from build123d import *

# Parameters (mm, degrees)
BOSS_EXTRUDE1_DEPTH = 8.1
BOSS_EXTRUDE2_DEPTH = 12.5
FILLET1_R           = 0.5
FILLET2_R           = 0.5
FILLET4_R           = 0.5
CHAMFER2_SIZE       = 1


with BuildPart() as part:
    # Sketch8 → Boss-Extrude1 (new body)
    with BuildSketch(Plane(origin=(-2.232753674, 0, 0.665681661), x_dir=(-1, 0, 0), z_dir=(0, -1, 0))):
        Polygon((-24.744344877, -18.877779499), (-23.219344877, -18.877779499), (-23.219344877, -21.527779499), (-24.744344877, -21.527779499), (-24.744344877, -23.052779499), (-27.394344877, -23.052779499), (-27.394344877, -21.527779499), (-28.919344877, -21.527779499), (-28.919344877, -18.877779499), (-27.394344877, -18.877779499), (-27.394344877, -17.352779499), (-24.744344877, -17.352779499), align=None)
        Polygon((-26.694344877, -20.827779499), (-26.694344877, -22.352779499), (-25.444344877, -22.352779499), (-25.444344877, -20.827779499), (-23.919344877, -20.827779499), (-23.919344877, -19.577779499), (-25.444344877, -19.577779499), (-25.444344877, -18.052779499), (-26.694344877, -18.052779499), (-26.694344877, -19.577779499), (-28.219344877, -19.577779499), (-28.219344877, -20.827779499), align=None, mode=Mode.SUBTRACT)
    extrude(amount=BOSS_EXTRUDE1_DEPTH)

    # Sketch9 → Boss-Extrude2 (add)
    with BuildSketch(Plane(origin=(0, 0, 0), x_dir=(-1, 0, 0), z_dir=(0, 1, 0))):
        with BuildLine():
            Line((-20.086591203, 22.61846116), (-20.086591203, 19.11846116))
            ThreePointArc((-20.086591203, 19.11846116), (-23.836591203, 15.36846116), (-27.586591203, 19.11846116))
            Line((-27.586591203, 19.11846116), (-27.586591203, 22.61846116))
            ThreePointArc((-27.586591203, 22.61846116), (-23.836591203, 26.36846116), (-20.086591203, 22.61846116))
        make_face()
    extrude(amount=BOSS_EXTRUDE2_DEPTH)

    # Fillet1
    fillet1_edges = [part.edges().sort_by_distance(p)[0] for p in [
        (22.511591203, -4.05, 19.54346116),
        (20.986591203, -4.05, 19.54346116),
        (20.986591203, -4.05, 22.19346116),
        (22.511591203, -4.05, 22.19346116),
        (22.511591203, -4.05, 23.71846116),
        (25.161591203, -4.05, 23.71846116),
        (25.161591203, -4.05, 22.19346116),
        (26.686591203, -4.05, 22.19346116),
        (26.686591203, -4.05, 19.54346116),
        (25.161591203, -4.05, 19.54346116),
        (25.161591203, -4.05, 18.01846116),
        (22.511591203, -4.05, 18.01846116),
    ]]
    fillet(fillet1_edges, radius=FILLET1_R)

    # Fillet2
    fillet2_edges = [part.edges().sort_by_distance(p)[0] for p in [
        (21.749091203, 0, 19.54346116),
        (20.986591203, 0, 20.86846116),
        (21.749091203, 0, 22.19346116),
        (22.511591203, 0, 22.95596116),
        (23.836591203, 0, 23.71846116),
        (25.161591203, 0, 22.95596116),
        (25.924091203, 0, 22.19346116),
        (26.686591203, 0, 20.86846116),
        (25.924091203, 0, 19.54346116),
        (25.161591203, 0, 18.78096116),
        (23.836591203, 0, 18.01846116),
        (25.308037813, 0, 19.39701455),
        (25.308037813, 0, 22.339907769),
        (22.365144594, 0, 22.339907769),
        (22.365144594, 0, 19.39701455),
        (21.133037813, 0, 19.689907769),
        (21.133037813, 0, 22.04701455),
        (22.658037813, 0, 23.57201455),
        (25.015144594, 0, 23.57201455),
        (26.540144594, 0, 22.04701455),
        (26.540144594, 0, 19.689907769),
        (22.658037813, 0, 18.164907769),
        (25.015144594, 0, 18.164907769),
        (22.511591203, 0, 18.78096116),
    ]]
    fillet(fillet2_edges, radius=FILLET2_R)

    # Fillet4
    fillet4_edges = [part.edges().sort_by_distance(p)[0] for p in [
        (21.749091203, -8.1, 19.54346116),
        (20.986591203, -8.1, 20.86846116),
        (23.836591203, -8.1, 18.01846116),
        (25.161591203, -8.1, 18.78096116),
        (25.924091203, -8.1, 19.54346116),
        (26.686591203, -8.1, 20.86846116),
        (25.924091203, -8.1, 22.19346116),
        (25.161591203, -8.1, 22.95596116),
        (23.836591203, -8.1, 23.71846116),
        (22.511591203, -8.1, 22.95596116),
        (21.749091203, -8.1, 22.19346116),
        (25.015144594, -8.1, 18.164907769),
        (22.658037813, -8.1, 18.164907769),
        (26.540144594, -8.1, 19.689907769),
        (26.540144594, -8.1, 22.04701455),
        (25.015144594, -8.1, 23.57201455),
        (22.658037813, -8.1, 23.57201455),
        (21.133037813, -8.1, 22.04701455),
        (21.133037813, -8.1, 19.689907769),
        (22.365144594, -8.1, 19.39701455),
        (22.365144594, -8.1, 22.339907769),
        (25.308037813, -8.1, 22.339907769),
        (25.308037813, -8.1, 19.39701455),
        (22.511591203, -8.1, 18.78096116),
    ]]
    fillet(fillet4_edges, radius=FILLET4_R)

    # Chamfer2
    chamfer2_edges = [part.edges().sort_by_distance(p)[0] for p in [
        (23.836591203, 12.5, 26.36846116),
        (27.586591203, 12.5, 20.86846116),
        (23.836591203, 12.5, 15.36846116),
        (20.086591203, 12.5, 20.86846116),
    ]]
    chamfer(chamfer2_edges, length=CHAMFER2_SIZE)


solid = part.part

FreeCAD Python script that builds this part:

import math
import FreeCAD as App
import Part
import Sketcher

V = App.Vector


def edges_at(feature, points):
    """Names of the edges that pass closest to the given points."""
    edges = feature.Shape.Edges
    near = lambda p: min(range(len(edges)), key=lambda i: edges[i].distToShape(Part.Vertex(*p))[0])
    return sorted({f"Edge{near(p) + 1}" for p in points})

doc = App.newDocument("Part")
body = doc.addObject("PartDesign::Body", "Body")

# Sketch on XZ plane
sketch1 = body.newObject("Sketcher::SketchObject", "Sketch")
sketch1.AttachmentSupport = (doc.getObject("XZ_Plane"), [""])
sketch1.MapMode = "FlatFace"
sketch1.addGeometry([
    Part.LineSegment(V(21, 19.5, 0), V(22.5, 19.5, 0)),  # 0
    Part.LineSegment(V(22.5, 19.5, 0), V(22.5, 18, 0)),  # 1
    Part.LineSegment(V(22.5, 18, 0), V(25.2, 18, 0)),  # 2
    Part.LineSegment(V(25.2, 18, 0), V(25.2, 19.5, 0)),  # 3
    Part.LineSegment(V(25.2, 19.5, 0), V(26.7, 19.5, 0)),  # 4
    Part.LineSegment(V(26.7, 19.5, 0), V(26.7, 22.2, 0)),  # 5
    Part.LineSegment(V(26.7, 22.2, 0), V(25.2, 22.2, 0)),  # 6
    Part.LineSegment(V(25.2, 22.2, 0), V(25.2, 23.7, 0)),  # 7
    Part.LineSegment(V(25.2, 23.7, 0), V(22.5, 23.7, 0)),  # 8
    Part.LineSegment(V(22.5, 23.7, 0), V(22.5, 22.2, 0)),  # 9
    Part.LineSegment(V(22.5, 22.2, 0), V(21, 22.2, 0)),  # 10
    Part.LineSegment(V(21, 22.2, 0), V(21, 19.5, 0)),  # 11
    Part.LineSegment(V(24.5, 21.5, 0), V(26, 21.5, 0)),  # 12
    Part.LineSegment(V(26, 21.5, 0), V(26, 20.2, 0)),  # 13
    Part.LineSegment(V(26, 20.2, 0), V(24.5, 20.2, 0)),  # 14
    Part.LineSegment(V(24.5, 20.2, 0), V(24.5, 18.7, 0)),  # 15
    Part.LineSegment(V(24.5, 18.7, 0), V(23.2, 18.7, 0)),  # 16
    Part.LineSegment(V(23.2, 18.7, 0), V(23.2, 20.2, 0)),  # 17
    Part.LineSegment(V(23.2, 20.2, 0), V(21.7, 20.2, 0)),  # 18
    Part.LineSegment(V(21.7, 20.2, 0), V(21.7, 21.5, 0)),  # 19
    Part.LineSegment(V(21.7, 21.5, 0), V(23.2, 21.5, 0)),  # 20
    Part.LineSegment(V(23.2, 21.5, 0), V(23.2, 23, 0)),  # 21
    Part.LineSegment(V(23.2, 23, 0), V(24.5, 23, 0)),  # 22
    Part.LineSegment(V(24.5, 23, 0), V(24.5, 21.5, 0)),  # 23
], False)
sketch1.addConstraint([
    Sketcher.Constraint("Coincident", 0, 2, 1, 1),
    Sketcher.Constraint("Coincident", 1, 2, 2, 1),
    Sketcher.Constraint("Coincident", 2, 2, 3, 1),
    Sketcher.Constraint("Coincident", 3, 2, 4, 1),
    Sketcher.Constraint("Coincident", 4, 2, 5, 1),
    Sketcher.Constraint("Coincident", 5, 2, 6, 1),
    Sketcher.Constraint("Coincident", 6, 2, 7, 1),
    Sketcher.Constraint("Coincident", 7, 2, 8, 1),
    Sketcher.Constraint("Coincident", 8, 2, 9, 1),
    Sketcher.Constraint("Coincident", 9, 2, 10, 1),
    Sketcher.Constraint("Coincident", 10, 2, 11, 1),
    Sketcher.Constraint("Coincident", 11, 2, 0, 1),
    Sketcher.Constraint("Coincident", 12, 2, 13, 1),
    Sketcher.Constraint("Coincident", 13, 2, 14, 1),
    Sketcher.Constraint("Coincident", 14, 2, 15, 1),
    Sketcher.Constraint("Coincident", 15, 2, 16, 1),
    Sketcher.Constraint("Coincident", 16, 2, 17, 1),
    Sketcher.Constraint("Coincident", 17, 2, 18, 1),
    Sketcher.Constraint("Coincident", 18, 2, 19, 1),
    Sketcher.Constraint("Coincident", 19, 2, 20, 1),
    Sketcher.Constraint("Coincident", 20, 2, 21, 1),
    Sketcher.Constraint("Coincident", 21, 2, 22, 1),
    Sketcher.Constraint("Coincident", 22, 2, 23, 1),
    Sketcher.Constraint("Coincident", 23, 2, 12, 1),
    Sketcher.Constraint("Horizontal", 0),
    Sketcher.Constraint("Vertical", 1),
    Sketcher.Constraint("Horizontal", 2),
    Sketcher.Constraint("Vertical", 3),
    Sketcher.Constraint("Horizontal", 4),
    Sketcher.Constraint("Vertical", 5),
    Sketcher.Constraint("Horizontal", 6),
    Sketcher.Constraint("Vertical", 7),
    Sketcher.Constraint("Horizontal", 8),
    Sketcher.Constraint("Vertical", 9),
    Sketcher.Constraint("Horizontal", 10),
    Sketcher.Constraint("Vertical", 11),
    Sketcher.Constraint("Horizontal", 12),
    Sketcher.Constraint("Vertical", 13),
    Sketcher.Constraint("Horizontal", 14),
    Sketcher.Constraint("Vertical", 15),
    Sketcher.Constraint("Horizontal", 16),
    Sketcher.Constraint("Vertical", 17),
    Sketcher.Constraint("Horizontal", 18),
    Sketcher.Constraint("Vertical", 19),
    Sketcher.Constraint("Horizontal", 20),
    Sketcher.Constraint("Vertical", 21),
    Sketcher.Constraint("Horizontal", 22),
    Sketcher.Constraint("Vertical", 23),
    Sketcher.Constraint("Horizontal", 0, 2, 3, 2),
    Sketcher.Constraint("Horizontal", 6, 2, 9, 2),
    Sketcher.Constraint("Horizontal", 14, 2, 17, 2),
    Sketcher.Constraint("Horizontal", 12, 2, 19, 2),
    Sketcher.Constraint("Vertical", 3, 2, 6, 2),
    Sketcher.Constraint("Vertical", 1, 2, 8, 2),
    Sketcher.Constraint("Vertical", 17, 2, 20, 2),
    Sketcher.Constraint("Vertical", 15, 2, 22, 2),
    Sketcher.Constraint("Equal", 0, 4),
    Sketcher.Constraint("Equal", 10, 12),
    Sketcher.Constraint("Equal", 14, 18),
    Sketcher.Constraint("Equal", 20, 1),
    Sketcher.Constraint("Equal", 8, 5),
    Sketcher.Constraint("Equal", 3, 7),
    Sketcher.Constraint("Equal", 22, 13),
    Sketcher.Constraint("Equal", 9, 15),
    Sketcher.Constraint("Equal", 17, 21),
    Sketcher.Constraint("DistanceX", 2, 1, 2, 2, 2.65),
    Sketcher.Constraint("DistanceX", 16, 2, 16, 1, 1.25),
    Sketcher.Constraint("DistanceX", 12, 2, 5, 2, 0.7),
    Sketcher.Constraint("DistanceY", 12, 2, 5, 2, 0.7),
    Sketcher.Constraint("DistanceX", 0, 1, 0, 2, 1.525),
    Sketcher.Constraint("DistanceX", -1, 1, 0, 2, 22.511591),
    Sketcher.Constraint("DistanceY", -1, 1, 0, 2, 19.543461),
])
pad1 = body.newObject("PartDesign::Pad", "Pad")
pad1.Profile = sketch1
pad1.Length = 8.1

# Sketch on XZ plane
sketch2 = body.newObject("Sketcher::SketchObject", "Sketch001")
sketch2.AttachmentSupport = (doc.getObject("XZ_Plane"), [""])
sketch2.MapMode = "FlatFace"
sketch2.addGeometry([
    Part.LineSegment(V(20.1, 19.1, 0), V(20.1, 22.6, 0)),
    Part.ArcOfCircle(Part.Circle(V(23.8, 22.6, 0), V(0, 0, 1), 3.8), math.radians(0), math.radians(180)),
    Part.LineSegment(V(27.6, 22.6, 0), V(27.6, 19.1, 0)),
    Part.ArcOfCircle(Part.Circle(V(23.8, 19.1, 0), V(0, 0, 1), 3.8), math.radians(180), math.radians(360)),
], False)
sketch2.addConstraint([
    Sketcher.Constraint("Tangent", 0, 2, 1, 2),
    Sketcher.Constraint("Tangent", 1, 1, 2, 1),
    Sketcher.Constraint("Tangent", 2, 2, 3, 2),
    Sketcher.Constraint("Tangent", 3, 1, 0, 1),
    Sketcher.Constraint("Vertical", 0),
    Sketcher.Constraint("Vertical", 2),
    Sketcher.Constraint("Radius", 1, 3.75),
    Sketcher.Constraint("DistanceY", 0, 1, 0, 2, 3.5),
    Sketcher.Constraint("DistanceX", -1, 1, 1, 3, 23.836591),
    Sketcher.Constraint("DistanceY", -1, 1, 1, 3, 22.618461),
])
pad2 = body.newObject("PartDesign::Pad", "Pad001")
pad2.Profile = sketch2
pad2.Length = 12.5
pad2.Reversed = True
doc.recompute()

fillet = body.newObject("PartDesign::Fillet", "Fillet")
fillet.Base = (pad2, edges_at(pad2, [
    (22.512, -4.05, 19.543),
    (20.987, -4.05, 19.543),
    (20.987, -4.05, 22.193),
    (22.512, -4.05, 22.193),
    (22.512, -4.05, 23.718),
    (25.162, -4.05, 23.718),
    (25.162, -4.05, 22.193),
    (26.687, -4.05, 22.193),
    (26.687, -4.05, 19.543),
    (25.162, -4.05, 19.543),
    (25.162, -4.05, 18.018),
    (22.512, -4.05, 18.018),
]))
fillet.Radius = 0.5
doc.recompute()

fillet2 = body.newObject("PartDesign::Fillet", "Fillet001")
fillet2.Base = (fillet, edges_at(fillet, [
    (21.749, 0, 19.543),
    (20.987, 0, 20.868),
    (21.749, 0, 22.193),
    (22.512, 0, 22.956),
    (23.837, 0, 23.718),
    (25.162, 0, 22.956),
    (25.924, 0, 22.193),
    (26.687, 0, 20.868),
    (25.924, 0, 19.543),
    (25.162, 0, 18.781),
    (23.837, 0, 18.018),
    (25.308, 0, 19.397),
    (25.308, 0, 22.34),
    (22.365, 0, 22.34),
    (22.365, 0, 19.397),
    (21.133, 0, 19.69),
    (21.133, 0, 22.047),
    (22.658, 0, 23.572),
    (25.015, 0, 23.572),
    (26.54, 0, 22.047),
    (26.54, 0, 19.69),
    (22.658, 0, 18.165),
    (25.015, 0, 18.165),
    (22.512, 0, 18.781),
]))
fillet2.Radius = 0.5
doc.recompute()

fillet3 = body.newObject("PartDesign::Fillet", "Fillet002")
fillet3.Base = (fillet2, edges_at(fillet2, [
    (21.749, -8.1, 19.543),
    (20.987, -8.1, 20.868),
    (23.837, -8.1, 18.018),
    (25.162, -8.1, 18.781),
    (25.924, -8.1, 19.543),
    (26.687, -8.1, 20.868),
    (25.924, -8.1, 22.193),
    (25.162, -8.1, 22.956),
    (23.837, -8.1, 23.718),
    (22.512, -8.1, 22.956),
    (21.749, -8.1, 22.193),
    (25.015, -8.1, 18.165),
    (22.658, -8.1, 18.165),
    (26.54, -8.1, 19.69),
    (26.54, -8.1, 22.047),
    (25.015, -8.1, 23.572),
    (22.658, -8.1, 23.572),
    (21.133, -8.1, 22.047),
    (21.133, -8.1, 19.69),
    (22.365, -8.1, 19.397),
    (22.365, -8.1, 22.34),
    (25.308, -8.1, 22.34),
    (25.308, -8.1, 19.397),
    (22.512, -8.1, 18.781),
]))
fillet3.Radius = 0.5
doc.recompute()

chamfer = body.newObject("PartDesign::Chamfer", "Chamfer")
chamfer.Base = (fillet3, edges_at(fillet3, [
    (23.837, 12.5, 26.368),
    (27.587, 12.5, 20.868),
    (23.837, 12.5, 15.368),
    (20.087, 12.5, 20.868),
]))
chamfer.Size = 1

doc.recompute()
